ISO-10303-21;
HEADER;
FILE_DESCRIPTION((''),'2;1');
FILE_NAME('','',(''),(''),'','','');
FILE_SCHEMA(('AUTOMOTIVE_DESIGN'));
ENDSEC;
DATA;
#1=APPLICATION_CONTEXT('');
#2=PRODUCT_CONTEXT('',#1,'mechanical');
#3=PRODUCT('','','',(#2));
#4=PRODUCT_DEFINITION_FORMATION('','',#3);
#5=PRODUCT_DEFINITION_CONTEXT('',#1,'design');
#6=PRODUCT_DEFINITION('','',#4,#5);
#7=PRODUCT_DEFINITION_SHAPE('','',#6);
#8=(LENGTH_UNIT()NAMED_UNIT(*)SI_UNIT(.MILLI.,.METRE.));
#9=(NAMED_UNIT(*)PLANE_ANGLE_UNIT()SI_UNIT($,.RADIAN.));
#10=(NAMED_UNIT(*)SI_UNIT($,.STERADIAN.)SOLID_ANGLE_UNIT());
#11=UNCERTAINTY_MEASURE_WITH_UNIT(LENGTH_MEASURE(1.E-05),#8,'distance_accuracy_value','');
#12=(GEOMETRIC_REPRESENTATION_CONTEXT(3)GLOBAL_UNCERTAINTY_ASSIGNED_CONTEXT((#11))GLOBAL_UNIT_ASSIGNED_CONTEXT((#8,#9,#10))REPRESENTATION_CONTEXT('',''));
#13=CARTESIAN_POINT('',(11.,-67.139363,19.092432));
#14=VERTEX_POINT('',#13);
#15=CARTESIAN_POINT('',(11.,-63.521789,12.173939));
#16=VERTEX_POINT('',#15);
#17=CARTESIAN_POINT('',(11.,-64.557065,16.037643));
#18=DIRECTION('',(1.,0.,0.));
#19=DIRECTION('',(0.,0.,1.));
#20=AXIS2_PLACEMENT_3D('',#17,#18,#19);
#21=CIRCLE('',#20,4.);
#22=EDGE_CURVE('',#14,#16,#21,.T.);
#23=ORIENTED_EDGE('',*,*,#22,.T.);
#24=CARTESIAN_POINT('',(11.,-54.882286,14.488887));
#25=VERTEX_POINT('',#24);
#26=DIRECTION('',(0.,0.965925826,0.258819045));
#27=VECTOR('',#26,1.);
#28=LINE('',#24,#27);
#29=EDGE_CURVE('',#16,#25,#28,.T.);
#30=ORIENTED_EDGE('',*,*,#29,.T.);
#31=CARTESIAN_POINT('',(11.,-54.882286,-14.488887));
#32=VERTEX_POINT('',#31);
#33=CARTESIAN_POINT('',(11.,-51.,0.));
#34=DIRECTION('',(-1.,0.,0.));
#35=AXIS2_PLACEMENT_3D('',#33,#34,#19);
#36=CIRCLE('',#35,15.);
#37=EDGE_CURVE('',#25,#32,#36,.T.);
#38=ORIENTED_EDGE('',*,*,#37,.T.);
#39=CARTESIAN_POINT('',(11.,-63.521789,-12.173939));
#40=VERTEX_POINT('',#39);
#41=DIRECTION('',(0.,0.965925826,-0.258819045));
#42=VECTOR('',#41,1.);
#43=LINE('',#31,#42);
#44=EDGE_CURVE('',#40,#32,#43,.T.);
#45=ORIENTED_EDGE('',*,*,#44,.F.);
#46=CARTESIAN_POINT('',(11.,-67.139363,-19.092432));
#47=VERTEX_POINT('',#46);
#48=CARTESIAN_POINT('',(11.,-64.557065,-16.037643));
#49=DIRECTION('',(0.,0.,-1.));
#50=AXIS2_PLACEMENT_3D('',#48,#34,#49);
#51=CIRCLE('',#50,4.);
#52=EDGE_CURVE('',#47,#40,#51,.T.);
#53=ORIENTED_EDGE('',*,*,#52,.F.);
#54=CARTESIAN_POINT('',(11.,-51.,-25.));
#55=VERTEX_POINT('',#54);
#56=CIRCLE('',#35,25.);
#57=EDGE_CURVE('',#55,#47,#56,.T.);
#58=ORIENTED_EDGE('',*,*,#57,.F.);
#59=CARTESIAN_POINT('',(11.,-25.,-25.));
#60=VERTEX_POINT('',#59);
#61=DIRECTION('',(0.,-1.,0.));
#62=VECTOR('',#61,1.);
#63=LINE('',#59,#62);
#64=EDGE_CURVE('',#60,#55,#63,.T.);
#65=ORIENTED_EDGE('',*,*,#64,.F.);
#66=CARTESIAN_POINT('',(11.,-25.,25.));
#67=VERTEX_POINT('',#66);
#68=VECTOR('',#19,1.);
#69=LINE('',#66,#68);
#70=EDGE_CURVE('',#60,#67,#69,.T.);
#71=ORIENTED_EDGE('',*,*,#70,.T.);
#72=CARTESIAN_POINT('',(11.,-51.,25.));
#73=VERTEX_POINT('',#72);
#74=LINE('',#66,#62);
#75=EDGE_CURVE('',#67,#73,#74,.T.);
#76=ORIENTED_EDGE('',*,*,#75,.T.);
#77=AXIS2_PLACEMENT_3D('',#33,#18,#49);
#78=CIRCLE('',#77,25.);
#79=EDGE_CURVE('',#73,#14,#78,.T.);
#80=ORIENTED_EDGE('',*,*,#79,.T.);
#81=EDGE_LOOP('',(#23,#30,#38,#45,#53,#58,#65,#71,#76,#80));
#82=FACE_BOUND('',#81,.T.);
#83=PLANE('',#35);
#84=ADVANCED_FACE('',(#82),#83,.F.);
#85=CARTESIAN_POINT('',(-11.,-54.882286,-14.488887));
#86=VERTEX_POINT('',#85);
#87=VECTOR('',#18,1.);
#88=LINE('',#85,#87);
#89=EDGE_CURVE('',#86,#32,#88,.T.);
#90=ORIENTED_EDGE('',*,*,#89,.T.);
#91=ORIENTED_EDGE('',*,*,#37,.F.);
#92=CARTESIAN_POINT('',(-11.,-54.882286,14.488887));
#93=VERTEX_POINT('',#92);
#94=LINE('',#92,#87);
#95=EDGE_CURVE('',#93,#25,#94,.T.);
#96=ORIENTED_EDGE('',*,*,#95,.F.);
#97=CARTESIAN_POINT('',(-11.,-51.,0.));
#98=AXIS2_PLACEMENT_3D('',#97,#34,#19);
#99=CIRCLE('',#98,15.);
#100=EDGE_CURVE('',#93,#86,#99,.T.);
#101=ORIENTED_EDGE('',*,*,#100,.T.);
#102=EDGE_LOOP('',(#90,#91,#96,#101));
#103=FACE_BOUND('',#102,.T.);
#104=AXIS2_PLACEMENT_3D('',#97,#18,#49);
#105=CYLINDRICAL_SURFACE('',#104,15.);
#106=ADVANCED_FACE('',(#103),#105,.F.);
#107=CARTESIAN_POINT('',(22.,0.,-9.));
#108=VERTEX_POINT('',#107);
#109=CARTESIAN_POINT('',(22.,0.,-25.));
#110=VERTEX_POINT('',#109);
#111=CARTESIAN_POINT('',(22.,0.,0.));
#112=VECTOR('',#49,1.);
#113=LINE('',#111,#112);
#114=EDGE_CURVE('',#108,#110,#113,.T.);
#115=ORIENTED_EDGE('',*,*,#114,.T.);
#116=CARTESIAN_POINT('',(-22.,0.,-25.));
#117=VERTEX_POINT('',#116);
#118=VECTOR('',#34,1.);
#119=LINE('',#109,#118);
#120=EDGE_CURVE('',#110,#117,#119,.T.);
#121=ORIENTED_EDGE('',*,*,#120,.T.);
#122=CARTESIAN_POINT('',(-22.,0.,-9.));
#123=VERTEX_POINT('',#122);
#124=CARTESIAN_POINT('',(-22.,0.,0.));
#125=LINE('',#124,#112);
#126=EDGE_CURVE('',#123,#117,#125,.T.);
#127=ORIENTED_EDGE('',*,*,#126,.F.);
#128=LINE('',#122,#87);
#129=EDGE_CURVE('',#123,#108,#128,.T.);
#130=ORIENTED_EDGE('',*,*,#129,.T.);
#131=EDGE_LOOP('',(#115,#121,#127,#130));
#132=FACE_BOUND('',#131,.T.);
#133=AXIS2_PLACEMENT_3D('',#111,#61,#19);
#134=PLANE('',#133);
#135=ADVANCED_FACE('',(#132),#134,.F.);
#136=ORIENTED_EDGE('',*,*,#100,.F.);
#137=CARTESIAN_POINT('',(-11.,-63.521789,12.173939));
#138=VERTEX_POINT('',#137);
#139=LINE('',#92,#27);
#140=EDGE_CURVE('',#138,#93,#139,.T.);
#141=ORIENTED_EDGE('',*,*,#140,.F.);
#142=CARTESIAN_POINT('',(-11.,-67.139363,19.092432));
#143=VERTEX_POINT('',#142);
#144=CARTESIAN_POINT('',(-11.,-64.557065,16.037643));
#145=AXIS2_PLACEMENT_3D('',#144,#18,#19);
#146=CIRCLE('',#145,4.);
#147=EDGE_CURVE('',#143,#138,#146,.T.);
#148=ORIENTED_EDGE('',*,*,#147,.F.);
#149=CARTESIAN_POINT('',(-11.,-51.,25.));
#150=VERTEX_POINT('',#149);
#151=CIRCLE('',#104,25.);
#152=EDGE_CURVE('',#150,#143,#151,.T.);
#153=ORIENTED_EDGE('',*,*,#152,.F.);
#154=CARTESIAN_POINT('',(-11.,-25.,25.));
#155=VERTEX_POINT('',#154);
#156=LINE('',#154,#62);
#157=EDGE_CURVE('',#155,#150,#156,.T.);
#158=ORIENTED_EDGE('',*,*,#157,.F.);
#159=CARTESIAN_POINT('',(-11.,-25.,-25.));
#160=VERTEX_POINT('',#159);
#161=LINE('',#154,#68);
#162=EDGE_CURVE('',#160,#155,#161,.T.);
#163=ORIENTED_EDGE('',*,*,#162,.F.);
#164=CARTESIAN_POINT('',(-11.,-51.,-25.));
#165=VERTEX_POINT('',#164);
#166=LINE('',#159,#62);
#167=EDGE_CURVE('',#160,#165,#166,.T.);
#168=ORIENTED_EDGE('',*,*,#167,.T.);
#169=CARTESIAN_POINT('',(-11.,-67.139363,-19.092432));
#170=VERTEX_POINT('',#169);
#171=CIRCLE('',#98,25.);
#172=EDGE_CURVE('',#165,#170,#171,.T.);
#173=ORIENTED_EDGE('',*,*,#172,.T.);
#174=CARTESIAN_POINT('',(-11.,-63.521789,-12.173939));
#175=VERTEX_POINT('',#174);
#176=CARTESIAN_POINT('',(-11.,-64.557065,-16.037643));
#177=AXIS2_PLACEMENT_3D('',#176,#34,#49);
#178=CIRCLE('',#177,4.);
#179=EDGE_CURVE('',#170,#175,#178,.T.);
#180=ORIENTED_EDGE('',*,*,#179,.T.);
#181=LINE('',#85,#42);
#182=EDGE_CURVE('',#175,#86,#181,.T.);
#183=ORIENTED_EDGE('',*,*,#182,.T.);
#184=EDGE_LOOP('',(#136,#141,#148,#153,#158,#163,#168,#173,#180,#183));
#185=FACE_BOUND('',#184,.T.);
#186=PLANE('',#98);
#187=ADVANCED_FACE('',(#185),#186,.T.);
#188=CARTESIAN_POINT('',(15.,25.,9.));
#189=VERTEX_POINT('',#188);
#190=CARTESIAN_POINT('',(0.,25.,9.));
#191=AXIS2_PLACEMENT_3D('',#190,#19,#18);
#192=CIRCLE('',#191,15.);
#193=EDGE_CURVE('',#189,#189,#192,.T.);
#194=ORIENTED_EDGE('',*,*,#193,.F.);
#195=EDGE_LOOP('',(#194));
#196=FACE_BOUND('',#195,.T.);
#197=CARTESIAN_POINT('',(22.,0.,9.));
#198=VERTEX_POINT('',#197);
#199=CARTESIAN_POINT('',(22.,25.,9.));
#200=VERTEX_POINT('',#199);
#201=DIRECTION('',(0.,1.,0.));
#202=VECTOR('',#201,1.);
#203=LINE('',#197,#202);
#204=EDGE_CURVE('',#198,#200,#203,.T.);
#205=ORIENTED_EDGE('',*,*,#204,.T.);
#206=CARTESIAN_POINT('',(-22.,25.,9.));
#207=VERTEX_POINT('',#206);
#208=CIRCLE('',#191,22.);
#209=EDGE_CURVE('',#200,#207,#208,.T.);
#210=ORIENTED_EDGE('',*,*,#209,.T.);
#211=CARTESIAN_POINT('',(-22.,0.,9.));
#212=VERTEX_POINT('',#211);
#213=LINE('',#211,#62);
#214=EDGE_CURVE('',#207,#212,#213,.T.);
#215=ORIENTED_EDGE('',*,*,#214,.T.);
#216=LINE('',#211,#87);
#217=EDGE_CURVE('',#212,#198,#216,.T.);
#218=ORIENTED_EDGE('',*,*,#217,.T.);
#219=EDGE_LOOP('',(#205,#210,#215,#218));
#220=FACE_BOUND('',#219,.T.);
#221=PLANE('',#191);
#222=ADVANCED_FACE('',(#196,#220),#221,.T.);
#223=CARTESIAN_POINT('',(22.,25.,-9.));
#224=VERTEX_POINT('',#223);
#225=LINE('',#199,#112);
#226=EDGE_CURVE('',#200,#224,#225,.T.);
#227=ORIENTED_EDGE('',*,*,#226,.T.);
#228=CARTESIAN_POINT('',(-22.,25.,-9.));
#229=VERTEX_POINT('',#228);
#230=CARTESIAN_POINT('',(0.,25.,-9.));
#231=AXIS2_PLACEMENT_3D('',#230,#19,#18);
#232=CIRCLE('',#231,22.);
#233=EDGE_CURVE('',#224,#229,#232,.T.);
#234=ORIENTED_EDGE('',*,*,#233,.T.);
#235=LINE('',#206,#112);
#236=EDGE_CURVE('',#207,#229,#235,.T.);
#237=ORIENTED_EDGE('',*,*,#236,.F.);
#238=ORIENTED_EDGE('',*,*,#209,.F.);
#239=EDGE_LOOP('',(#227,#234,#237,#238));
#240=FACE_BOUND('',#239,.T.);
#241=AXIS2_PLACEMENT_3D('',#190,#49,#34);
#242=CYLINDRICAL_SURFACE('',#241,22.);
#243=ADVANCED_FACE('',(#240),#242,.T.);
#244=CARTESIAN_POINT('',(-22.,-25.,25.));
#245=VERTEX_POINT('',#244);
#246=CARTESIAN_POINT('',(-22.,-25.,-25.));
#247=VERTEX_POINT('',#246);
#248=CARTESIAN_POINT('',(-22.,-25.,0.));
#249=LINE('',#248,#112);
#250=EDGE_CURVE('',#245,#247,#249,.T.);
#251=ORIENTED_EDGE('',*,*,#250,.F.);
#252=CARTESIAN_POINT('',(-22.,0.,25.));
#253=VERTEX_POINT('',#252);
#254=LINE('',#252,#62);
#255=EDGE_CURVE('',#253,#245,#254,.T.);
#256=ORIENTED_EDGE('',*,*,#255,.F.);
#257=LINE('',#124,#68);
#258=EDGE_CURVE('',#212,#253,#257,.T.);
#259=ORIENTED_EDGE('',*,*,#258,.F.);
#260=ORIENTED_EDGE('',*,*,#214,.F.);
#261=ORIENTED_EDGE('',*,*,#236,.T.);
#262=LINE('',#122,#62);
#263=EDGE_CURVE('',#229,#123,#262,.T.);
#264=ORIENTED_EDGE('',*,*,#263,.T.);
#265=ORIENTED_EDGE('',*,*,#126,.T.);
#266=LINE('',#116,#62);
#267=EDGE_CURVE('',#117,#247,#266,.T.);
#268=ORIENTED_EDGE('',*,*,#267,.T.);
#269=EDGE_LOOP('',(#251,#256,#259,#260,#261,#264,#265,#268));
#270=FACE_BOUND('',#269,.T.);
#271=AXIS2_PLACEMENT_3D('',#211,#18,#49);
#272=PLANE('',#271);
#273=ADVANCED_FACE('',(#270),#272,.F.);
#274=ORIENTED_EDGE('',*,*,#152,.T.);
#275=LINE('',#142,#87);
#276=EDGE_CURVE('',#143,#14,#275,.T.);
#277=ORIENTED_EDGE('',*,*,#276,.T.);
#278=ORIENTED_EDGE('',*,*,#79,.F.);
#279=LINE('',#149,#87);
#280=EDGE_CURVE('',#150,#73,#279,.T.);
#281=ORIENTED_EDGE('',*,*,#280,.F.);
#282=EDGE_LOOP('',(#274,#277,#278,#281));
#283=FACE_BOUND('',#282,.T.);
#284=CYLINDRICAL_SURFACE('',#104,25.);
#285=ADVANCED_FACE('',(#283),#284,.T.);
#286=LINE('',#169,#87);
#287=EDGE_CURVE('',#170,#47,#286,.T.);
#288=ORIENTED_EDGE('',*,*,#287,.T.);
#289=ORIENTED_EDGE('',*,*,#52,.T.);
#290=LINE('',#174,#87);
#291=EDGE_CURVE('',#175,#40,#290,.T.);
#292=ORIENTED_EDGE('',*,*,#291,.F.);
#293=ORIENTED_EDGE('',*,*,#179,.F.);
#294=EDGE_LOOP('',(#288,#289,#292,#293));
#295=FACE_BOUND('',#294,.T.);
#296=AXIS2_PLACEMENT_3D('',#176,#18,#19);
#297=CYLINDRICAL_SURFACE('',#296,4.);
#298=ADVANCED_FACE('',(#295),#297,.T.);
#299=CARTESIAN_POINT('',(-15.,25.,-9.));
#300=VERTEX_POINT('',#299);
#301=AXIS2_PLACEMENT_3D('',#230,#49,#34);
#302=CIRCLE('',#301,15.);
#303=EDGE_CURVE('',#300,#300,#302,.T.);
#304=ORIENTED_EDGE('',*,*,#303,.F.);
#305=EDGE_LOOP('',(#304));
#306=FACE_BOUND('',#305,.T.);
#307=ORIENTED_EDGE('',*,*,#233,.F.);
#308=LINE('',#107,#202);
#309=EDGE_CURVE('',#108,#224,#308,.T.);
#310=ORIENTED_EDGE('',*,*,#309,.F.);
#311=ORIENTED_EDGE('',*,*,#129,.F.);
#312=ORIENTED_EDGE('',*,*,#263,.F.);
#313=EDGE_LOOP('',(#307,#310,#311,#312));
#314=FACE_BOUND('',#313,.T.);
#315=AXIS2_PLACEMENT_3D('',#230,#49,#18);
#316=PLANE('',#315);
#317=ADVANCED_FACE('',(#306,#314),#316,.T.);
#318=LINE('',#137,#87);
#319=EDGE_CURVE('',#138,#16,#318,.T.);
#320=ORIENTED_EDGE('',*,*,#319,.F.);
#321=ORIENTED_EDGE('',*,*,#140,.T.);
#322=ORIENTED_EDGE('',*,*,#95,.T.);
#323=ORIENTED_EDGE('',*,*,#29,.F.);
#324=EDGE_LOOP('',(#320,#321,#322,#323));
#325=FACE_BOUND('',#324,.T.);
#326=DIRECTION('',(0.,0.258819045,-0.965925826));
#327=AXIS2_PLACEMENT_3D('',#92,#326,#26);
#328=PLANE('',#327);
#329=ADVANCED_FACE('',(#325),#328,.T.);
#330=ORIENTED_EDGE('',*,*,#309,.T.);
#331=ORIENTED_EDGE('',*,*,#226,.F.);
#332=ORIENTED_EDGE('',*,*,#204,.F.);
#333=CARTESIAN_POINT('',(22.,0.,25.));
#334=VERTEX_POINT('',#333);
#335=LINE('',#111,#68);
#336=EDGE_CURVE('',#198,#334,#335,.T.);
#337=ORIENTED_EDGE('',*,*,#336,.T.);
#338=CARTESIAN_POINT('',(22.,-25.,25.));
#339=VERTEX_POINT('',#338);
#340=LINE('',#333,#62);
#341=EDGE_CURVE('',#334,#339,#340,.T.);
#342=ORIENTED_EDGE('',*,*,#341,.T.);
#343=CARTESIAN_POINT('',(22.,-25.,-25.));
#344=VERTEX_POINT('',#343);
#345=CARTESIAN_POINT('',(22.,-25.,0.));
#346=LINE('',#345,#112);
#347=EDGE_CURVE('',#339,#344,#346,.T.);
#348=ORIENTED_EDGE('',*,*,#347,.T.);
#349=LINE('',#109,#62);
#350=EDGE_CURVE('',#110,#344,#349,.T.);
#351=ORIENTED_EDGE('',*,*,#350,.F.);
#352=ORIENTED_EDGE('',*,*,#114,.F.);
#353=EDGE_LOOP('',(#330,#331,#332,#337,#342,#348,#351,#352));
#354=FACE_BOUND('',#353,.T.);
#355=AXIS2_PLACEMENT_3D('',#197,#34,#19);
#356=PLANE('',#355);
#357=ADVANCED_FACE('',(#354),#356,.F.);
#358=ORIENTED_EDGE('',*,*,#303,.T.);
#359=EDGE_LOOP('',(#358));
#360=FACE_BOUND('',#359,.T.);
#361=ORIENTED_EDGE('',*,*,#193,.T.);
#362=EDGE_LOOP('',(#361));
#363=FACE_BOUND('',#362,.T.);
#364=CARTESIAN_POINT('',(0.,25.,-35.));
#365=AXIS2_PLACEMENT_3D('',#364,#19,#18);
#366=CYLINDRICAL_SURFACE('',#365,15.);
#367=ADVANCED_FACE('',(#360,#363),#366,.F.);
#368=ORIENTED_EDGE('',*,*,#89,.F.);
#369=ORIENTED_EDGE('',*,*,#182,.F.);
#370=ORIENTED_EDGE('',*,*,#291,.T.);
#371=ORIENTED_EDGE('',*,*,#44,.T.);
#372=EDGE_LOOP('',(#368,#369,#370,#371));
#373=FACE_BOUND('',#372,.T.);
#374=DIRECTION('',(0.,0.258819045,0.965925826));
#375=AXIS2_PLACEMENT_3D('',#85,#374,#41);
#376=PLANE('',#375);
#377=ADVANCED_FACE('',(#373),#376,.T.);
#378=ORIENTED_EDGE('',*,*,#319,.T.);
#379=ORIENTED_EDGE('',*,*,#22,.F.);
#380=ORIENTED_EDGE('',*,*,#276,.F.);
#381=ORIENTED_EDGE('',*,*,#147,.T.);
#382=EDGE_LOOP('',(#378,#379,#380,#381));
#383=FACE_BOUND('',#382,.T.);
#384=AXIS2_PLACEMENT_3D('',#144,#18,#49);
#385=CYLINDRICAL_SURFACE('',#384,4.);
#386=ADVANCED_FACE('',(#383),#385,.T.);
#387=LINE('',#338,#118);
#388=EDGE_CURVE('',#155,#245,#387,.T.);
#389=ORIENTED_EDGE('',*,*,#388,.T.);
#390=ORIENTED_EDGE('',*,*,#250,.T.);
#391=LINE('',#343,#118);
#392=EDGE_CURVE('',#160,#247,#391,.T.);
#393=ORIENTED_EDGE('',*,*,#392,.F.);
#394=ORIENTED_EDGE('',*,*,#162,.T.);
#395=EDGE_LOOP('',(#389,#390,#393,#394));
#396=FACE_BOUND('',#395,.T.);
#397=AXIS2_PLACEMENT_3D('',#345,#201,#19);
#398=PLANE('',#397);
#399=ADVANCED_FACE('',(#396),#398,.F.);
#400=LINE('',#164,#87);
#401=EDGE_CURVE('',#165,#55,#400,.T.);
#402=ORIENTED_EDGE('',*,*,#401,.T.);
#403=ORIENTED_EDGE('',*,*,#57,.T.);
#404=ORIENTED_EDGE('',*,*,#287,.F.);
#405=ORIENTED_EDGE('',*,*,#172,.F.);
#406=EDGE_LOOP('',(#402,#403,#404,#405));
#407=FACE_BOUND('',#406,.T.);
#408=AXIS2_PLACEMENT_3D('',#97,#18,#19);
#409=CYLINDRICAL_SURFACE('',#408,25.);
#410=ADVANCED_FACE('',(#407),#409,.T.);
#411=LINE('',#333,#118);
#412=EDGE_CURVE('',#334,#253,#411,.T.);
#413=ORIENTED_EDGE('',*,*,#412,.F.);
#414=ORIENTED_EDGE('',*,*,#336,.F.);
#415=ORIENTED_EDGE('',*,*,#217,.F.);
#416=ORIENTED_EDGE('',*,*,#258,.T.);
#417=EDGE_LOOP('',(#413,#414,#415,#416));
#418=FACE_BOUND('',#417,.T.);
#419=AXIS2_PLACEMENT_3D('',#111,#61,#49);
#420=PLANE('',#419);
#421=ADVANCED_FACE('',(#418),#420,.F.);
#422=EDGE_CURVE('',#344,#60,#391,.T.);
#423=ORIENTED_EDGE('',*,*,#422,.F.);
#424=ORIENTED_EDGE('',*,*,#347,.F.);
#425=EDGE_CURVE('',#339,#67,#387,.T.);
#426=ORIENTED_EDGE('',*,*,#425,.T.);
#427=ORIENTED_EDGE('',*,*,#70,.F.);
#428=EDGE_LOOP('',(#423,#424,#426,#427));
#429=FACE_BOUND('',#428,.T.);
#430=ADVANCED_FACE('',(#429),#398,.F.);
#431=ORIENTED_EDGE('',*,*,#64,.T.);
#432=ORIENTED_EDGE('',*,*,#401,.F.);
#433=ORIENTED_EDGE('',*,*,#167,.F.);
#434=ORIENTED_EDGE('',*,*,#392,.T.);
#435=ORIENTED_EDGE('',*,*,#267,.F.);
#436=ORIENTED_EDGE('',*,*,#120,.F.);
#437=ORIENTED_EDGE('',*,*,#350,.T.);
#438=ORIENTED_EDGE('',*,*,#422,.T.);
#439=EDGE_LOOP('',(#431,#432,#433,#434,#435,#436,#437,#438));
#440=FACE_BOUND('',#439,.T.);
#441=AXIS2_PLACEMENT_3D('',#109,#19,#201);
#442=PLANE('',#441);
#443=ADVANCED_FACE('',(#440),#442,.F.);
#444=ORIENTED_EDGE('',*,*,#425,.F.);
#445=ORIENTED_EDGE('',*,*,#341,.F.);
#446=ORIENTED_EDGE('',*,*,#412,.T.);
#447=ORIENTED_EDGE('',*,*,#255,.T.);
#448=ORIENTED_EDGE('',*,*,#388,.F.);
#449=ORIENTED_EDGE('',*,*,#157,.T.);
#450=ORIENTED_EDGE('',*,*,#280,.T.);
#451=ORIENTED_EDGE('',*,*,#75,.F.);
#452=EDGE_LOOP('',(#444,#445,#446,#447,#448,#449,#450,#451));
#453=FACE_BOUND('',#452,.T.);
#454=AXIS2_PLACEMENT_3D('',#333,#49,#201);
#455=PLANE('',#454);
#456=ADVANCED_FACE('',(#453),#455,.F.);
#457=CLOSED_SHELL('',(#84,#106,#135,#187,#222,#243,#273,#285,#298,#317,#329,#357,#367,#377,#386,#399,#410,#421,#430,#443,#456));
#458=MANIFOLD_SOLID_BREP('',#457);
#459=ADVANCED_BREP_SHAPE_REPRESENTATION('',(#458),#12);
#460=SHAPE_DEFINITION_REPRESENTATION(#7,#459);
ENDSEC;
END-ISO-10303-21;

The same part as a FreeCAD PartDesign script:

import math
import FreeCAD as App
import Part
import Sketcher

V = App.Vector
Q = App.Units.Quantity


def add_polygon(sketch, points):
    """Adds a closed chain of lines whose ends are joined by coincident constraints."""
    first, n = sketch.GeometryCount, len(points)
    for a, b in zip(points, points[1:] + points[:1]):
        sketch.addGeometry(Part.LineSegment(App.Vector(*a, 0), App.Vector(*b, 0)), False)
    for i in range(n):
        sketch.addConstraint(Sketcher.Constraint("Coincident", first + i, 2, first + (i + 1) % n, 1))

doc = App.newDocument("Part")
body = doc.addObject("PartDesign::Body", "Body")

# Sketch on XY plane
sketch1 = body.newObject("Sketcher::SketchObject", "Sketch")
sketch1.AttachmentSupport = (doc.getObject("XY_Plane"), [""])
sketch1.MapMode = "FlatFace"
sketch1.addGeometry([
    Part.LineSegment(V(-22, 25, 0), V(-22, 0, 0)),
    Part.LineSegment(V(-22, 0, 0), V(22, 0, 0)),
    Part.LineSegment(V(22, 0, 0), V(22, 25, 0)),
    Part.ArcOfCircle(Part.Circle(V(0, 25, 0), V(0, 0, 1), 22), math.radians(0), math.radians(180)),
], False)
sketch1.addConstraint([
    Sketcher.Constraint("Coincident", 0, 2, 1, 1),
    Sketcher.Constraint("Coincident", 1, 2, 2, 1),
    Sketcher.Constraint("Tangent", 2, 2, 3, 1),
    Sketcher.Constraint("Tangent", 3, 2, 0, 1),
    Sketcher.Constraint("Vertical", 0),
    Sketcher.Constraint("Horizontal", 1),
    Sketcher.Constraint("Vertical", 2),
    Sketcher.Constraint("Symmetric", 0, 2, 1, 2, -1, 1),
    Sketcher.Constraint("Radius", 3, Q("22 mm")),
    Sketcher.Constraint("DistanceY", 0, 2, 0, 1, Q("25 mm")),
])
pad1 = body.newObject("PartDesign::Pad", "Pad")
pad1.Profile = sketch1
pad1.Length = 9

# Sketch on YZ plane
sketch2 = body.newObject("Sketcher::SketchObject", "Sketch001")
sketch2.AttachmentSupport = (doc.getObject("YZ_Plane"), [""])
sketch2.MapMode = "FlatFace"
add_polygon(sketch2, [(25, 0), (25, 9), (0, 9), (0, 25), (-25, 25), (-25, 0)])  # lines 0-5
sketch2.addConstraint([
    Sketcher.Constraint("Vertical", 0),
    Sketcher.Constraint("Horizontal", 1),
    Sketcher.Constraint("Vertical", 2),
    Sketcher.Constraint("Horizontal", 3),
    Sketcher.Constraint("Vertical", 4),
    Sketcher.Constraint("Horizontal", 5),
    Sketcher.Constraint("Symmetric", 4, 2, 5, 2, -1, 1),
    Sketcher.Constraint("PointOnObject", 1, 2, -2),
    Sketcher.Constraint("Equal", 3, 4),
    Sketcher.Constraint("DistanceX", 1, 2, 1, 1, Q("25 mm")),
    Sketcher.Constraint("DistanceY", 0, 1, 0, 2, Q("9 mm")),
])
pad2 = body.newObject("PartDesign::Pad", "Pad001")
pad2.Profile = sketch2
pad2.Length = 44
pad2.Midplane = True

# Sketch on YZ plane
sketch3 = body.newObject("Sketcher::SketchObject", "Sketch002")
sketch3.AttachmentSupport = (doc.getObject("YZ_Plane"), [""])
sketch3.MapMode = "FlatFace"
sketch3.AttachmentOffset = App.Placement(V(0, 0, 11), App.Rotation())
sketch3.addGeometry([
    Part.LineSegment(V(-25, 25, 0), V(-51, 25, 0)),  # 0
    Part.ArcOfCircle(Part.Circle(V(-51, 0, 0), V(0, 0, 1), 25), math.radians(90), math.radians(130)),  # 1
    Part.ArcOfCircle(Part.Circle(V(-64.6, 16, 0), V(0, 0, 1), 4), math.radians(130), math.radians(285)),  # 2
    Part.LineSegment(V(-63.5, 12.2, 0), V(-54.9, 14.5, 0)),  # 3
    Part.ArcOfCircle(Part.Circle(V(-51, 0, 0), V(0, 0, 1), 15), math.radians(0), math.radians(105)),  # 4
    Part.LineSegment(V(-36, 0, 0), V(-25, 0, 0)),  # 5
    Part.LineSegment(V(-25, 0, 0), V(-25, 25, 0)),  # 6
], False)
sketch3.addConstraint([
    Sketcher.Constraint("Tangent", 0, 2, 1, 1),
    Sketcher.Constraint("Tangent", 1, 2, 2, 1),
    Sketcher.Constraint("Tangent", 2, 2, 3, 1),
    Sketcher.Constraint("Tangent", 3, 2, 4, 2),
    Sketcher.Constraint("Coincident", 4, 1, 5, 1),
    Sketcher.Constraint("Coincident", 5, 2, 6, 1),
    Sketcher.Constraint("Coincident", 6, 2, 0, 1),
    Sketcher.Constraint("Horizontal", 0),
    Sketcher.Constraint("Horizontal", 5),
    Sketcher.Constraint("Vertical", 6),
    Sketcher.Constraint("Coincident", 4, 3, 1, 3),
    Sketcher.Constraint("PointOnObject", 1, 3, -1),
    Sketcher.Constraint("PointOnObject", 4, 1, -1),
    Sketcher.Constraint("Radius", 1, Q("25 mm")),
    Sketcher.Constraint("Radius", 2, Q("4 mm")),
    Sketcher.Constraint("Radius", 4, Q("15 mm")),
    Sketcher.Constraint("DistanceX", 0, 2, 0, 1, Q("26 mm")),
    Sketcher.Constraint("Angle", 3, Q("15 deg")),
    Sketcher.Constraint("DistanceX", 1, 3, -1, 1, Q("51 mm")),
])
pad3 = body.newObject("PartDesign::Pad", "Pad002")
pad3.Profile = sketch3
pad3.Length = 22
pad3.Reversed = True
body2 = doc.addObject("PartDesign::Body", "Body001")
doc.recompute()

body2.BaseFeature = body
doc.recompute()

mirroring = doc.addObject("Part::Mirroring", "Mirroring")
mirroring.Source = body
mirroring.Base = V(0, 25, 0)
mirroring.Normal = V(0, 0, 1)
body3 = doc.addObject("PartDesign::Body", "Body002")
body3.BaseFeature = mirroring
boolean = body2.newObject("PartDesign::Boolean", "Boolean")
boolean.Type = "Fuse"
boolean.addObjects([body3])
doc.recompute()

# Sketch on XY plane
sketch4 = body2.newObject("Sketcher::SketchObject", "Sketch003")
sketch4.AttachmentSupport = (doc.getObject("XY_Plane001"), [""])
sketch4.MapMode = "FlatFace"
sketch4.AttachmentOffset = App.Placement(V(0, 0, 9), App.Rotation())
sketch4.addGeometry(Part.Circle(V(0, 25, 0), V(0, 0, 1), 15), False)
sketch4.addConstraint([
    Sketcher.Constraint("PointOnObject", 0, 3, -2),
    Sketcher.Constraint("Diameter", 0, Q("30 mm")),
    Sketcher.Constraint("DistanceY", -1, 1, 0, 3, Q("25 mm")),
])
pocket1 = body2.newObject("PartDesign::Pocket", "Pocket")
pocket1.Profile = sketch4
pocket1.Length = 44
mirroring.Visibility = False

doc.recompute()
